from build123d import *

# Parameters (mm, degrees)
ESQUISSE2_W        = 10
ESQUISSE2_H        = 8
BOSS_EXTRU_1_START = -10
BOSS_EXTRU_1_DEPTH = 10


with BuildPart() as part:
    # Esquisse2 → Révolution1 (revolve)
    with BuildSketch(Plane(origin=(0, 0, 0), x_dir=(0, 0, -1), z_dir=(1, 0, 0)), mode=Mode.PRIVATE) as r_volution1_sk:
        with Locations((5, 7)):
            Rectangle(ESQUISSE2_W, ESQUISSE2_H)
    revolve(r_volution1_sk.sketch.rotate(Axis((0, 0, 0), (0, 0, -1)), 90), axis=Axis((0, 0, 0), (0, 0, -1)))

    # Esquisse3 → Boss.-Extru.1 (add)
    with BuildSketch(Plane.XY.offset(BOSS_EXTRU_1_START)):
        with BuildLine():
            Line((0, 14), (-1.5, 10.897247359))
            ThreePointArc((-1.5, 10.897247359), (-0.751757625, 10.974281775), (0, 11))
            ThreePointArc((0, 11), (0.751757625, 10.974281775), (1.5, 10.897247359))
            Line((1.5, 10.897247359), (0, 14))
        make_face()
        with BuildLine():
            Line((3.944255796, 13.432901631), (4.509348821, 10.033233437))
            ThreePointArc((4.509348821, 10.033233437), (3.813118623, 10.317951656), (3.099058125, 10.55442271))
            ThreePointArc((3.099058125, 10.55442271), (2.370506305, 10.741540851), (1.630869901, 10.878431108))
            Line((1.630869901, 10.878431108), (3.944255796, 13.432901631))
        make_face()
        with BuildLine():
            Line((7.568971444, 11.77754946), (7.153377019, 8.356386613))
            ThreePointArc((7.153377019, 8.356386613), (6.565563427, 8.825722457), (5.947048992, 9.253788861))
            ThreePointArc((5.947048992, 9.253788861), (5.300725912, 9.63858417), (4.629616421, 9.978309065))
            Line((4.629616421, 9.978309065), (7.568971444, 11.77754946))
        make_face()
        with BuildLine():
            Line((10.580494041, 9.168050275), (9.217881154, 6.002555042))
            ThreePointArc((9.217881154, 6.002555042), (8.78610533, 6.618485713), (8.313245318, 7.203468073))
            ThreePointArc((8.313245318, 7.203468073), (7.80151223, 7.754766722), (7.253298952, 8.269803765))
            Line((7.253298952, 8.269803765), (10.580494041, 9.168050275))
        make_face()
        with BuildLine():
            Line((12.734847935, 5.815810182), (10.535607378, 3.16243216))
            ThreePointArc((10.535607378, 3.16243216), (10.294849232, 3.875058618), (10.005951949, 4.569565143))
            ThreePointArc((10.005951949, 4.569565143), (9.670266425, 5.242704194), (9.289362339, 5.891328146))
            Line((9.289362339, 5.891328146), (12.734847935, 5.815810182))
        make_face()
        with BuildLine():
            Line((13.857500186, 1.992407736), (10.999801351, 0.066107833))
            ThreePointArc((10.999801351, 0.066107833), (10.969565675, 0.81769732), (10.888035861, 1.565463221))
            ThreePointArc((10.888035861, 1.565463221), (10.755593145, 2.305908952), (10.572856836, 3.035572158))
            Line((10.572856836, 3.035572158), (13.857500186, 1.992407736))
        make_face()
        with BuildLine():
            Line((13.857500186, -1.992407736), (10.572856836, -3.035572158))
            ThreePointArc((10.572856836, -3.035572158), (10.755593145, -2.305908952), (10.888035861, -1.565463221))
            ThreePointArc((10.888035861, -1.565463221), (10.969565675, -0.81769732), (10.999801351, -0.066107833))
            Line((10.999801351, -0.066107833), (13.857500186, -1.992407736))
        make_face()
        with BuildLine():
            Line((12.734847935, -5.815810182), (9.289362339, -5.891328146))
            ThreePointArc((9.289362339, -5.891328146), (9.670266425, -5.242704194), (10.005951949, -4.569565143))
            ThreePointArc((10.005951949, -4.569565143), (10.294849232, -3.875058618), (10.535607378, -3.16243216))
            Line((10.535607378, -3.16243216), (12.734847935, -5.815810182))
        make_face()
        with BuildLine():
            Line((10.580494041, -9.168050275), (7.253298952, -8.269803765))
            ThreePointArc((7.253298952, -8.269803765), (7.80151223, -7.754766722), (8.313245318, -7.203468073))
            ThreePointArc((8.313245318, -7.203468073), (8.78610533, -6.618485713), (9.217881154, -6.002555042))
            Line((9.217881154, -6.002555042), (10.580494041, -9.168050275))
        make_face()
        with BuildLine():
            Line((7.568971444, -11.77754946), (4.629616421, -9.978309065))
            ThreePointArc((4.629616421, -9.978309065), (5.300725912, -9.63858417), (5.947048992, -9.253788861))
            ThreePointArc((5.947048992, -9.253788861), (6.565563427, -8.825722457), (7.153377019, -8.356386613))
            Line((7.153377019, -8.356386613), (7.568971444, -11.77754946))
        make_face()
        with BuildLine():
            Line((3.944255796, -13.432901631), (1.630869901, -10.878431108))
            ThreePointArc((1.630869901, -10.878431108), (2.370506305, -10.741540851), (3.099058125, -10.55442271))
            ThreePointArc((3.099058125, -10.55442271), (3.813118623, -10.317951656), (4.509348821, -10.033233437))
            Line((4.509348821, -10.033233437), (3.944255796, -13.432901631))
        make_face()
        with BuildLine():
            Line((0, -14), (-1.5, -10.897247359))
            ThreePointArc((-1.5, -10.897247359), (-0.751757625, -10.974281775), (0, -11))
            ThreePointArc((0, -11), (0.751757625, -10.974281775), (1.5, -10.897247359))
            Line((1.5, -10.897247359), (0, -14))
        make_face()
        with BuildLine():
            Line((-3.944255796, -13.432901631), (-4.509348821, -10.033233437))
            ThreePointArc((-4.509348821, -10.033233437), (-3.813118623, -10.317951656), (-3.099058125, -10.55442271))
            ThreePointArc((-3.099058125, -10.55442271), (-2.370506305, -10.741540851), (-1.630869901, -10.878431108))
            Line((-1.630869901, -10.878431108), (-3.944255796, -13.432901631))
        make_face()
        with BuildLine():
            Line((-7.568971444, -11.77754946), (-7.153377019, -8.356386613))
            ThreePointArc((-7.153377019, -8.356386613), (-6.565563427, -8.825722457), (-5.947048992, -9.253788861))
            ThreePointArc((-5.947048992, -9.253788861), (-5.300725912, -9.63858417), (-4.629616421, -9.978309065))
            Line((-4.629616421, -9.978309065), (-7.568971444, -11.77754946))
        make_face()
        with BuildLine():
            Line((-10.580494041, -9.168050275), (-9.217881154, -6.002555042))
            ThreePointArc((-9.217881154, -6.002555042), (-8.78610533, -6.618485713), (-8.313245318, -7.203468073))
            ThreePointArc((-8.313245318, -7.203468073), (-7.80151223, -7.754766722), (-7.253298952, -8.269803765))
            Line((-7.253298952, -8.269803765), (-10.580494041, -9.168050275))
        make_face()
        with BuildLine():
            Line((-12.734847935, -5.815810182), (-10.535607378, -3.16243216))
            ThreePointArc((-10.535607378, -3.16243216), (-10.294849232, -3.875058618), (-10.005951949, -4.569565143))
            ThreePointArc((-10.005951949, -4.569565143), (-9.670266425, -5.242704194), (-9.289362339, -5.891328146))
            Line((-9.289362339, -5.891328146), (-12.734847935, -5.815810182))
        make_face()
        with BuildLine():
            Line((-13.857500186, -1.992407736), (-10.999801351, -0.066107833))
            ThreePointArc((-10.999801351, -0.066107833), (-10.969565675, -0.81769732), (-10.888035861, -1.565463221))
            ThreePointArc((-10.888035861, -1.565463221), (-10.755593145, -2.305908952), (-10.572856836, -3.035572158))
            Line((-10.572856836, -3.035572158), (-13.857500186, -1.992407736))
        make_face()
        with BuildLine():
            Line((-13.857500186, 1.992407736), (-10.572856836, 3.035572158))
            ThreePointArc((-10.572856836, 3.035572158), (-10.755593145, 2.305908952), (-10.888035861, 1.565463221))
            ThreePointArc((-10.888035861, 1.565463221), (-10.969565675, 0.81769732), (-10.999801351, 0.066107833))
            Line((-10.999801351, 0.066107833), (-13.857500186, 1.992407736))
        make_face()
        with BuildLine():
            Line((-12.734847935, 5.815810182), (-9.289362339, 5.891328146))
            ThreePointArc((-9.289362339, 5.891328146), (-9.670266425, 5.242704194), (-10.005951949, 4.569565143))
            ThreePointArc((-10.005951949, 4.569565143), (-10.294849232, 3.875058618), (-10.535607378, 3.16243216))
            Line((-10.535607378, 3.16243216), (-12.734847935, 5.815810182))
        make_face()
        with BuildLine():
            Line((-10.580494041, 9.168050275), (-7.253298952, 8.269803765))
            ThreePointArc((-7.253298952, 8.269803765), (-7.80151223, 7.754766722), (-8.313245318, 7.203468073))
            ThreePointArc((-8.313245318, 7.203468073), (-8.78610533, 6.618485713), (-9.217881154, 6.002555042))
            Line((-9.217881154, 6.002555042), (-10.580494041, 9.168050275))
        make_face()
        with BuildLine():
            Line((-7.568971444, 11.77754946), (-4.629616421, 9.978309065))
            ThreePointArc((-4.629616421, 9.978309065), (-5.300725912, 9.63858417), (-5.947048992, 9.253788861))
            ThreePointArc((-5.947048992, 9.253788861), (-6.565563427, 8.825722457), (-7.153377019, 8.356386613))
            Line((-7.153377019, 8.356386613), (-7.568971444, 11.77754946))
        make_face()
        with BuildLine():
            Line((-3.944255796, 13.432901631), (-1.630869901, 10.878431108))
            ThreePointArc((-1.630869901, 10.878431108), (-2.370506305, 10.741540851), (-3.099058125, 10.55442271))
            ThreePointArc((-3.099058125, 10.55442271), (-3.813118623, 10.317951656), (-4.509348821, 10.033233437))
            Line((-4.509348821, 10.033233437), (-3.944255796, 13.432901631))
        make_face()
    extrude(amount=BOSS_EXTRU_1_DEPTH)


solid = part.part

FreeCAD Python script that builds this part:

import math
import FreeCAD as App
import Part
import Sketcher
from FreeCAD import Vector
Q = App.Units.Quantity


def add_polygon(sketch, points):
    """Adds a closed chain of lines whose ends are joined by coincident constraints."""
    first, n = sketch.GeometryCount, len(points)
    for a, b in zip(points, points[1:] + points[:1]):
        sketch.addGeometry(Part.LineSegment(App.Vector(*a, 0), App.Vector(*b, 0)), False)
    for i in range(n):
        sketch.addConstraint(Sketcher.Constraint("Coincident", first + i, 2, first + (i + 1) % n, 1))

doc = App.newDocument("Part")
params = doc.addObject("Spreadsheet::Sheet", "Params")
for row, (alias, value) in enumerate([
    ("sketch1_width", "8 mm"),
    ("sketch1_height", "10 mm"),
    ("revolution_angle", "360 deg"),
    ("sketch2_radius", "11 mm"),
    ("pad1_length", "10 mm"),
], start=1):
    params.set(f"A{row}", alias)
    params.set(f"B{row}", "=" + value)
    params.setAlias(f"B{row}", alias)

body = doc.addObject("PartDesign::Body", "Body")

sketch1 = body.newObject("Sketcher::SketchObject", "Sketch")
sketch1.AttachmentSupport = (doc.getObject("YZ_Plane"), [""])
sketch1.MapMode = "FlatFace"
add_polygon(sketch1, [(11, 0), (3, 0), (3, -10), (11, -10)])
sketch1.addConstraint([
    Sketcher.Constraint("Horizontal", 0),
    Sketcher.Constraint("Vertical", 1),
    Sketcher.Constraint("Horizontal", 2),
    Sketcher.Constraint("Vertical", 3),
    Sketcher.Constraint("PointOnObject", 0, 2, -1),
    Sketcher.Constraint("DistanceX", 0, 2, 0, 1, Q("8 mm")),
    Sketcher.Constraint("DistanceY", 1, 2, 1, 1, Q("10 mm")),
    Sketcher.Constraint("DistanceX", -1, 1, 0, 2, Q("3 mm")),
])
sketch1.setExpression("Constraints[9]", "Params.sketch1_width")
sketch1.setExpression("Constraints[10]", "Params.sketch1_height")
revolution = body.newObject("PartDesign::Revolution", "Revolution")
revolution.Profile = sketch1
revolution.ReferenceAxis = (sketch1, ["V_Axis"])
revolution.setExpression("Angle", "Params.revolution_angle")

sketch2 = body.newObject("Sketcher::SketchObject", "Sketch001")
sketch2.AttachmentSupport = (doc.getObject("XY_Plane"), [""])
sketch2.MapMode = "FlatFace"
sketch2.AttachmentOffset = App.Placement(Vector(0, 0, -10), App.Rotation())
sketch2.addGeometry([
    Part.LineSegment(Vector(0, 14, 0), Vector(-1.5, 10.9, 0)),
    Part.ArcOfCircle(Part.Circle(Vector(0, 0, 0), Vector(0, 0, 1), 11), math.radians(90), math.radians(97.84)),
    Part.ArcOfCircle(Part.Circle(Vector(0, 0, 0), Vector(0, 0, 1), 11), math.radians(82.16), math.radians(90)),
    Part.LineSegment(Vector(1.5, 10.9, 0), Vector(0, 14, 0)),
    Part.LineSegment(Vector(4.5, 10, 0), Vector(3.9, 13.4, 0)),
    Part.LineSegment(Vector(3.9, 13.4, 0), Vector(1.6, 10.9, 0)),
    Part.ArcOfCircle(Part.Circle(Vector(0, 0, 0), Vector(0, 0, 1), 11), math.radians(73.64), math.radians(81.47)),
    Part.ArcOfCircle(Part.Circle(Vector(0, 0, 0), Vector(0, 0, 1), 11), math.radians(65.8), math.radians(73.64)),
    Part.LineSegment(Vector(7.2, 8.4, 0), Vector(7.6, 11.8, 0)),
    Part.LineSegment(Vector(7.6, 11.8, 0), Vector(4.6, 10, 0)),
    Part.ArcOfCircle(Part.Circle(Vector(0, 0, 0), Vector(0, 0, 1), 11), math.radians(57.27), math.radians(65.11)),
    Part.ArcOfCircle(Part.Circle(Vector(0, 0, 0), Vector(0, 0, 1), 11), math.radians(49.44), math.radians(57.27)),
    Part.LineSegment(Vector(9.2, 6, 0), Vector(10.6, 9.2, 0)),
    Part.LineSegment(Vector(10.6, 9.2, 0), Vector(7.3, 8.3, 0)),
    Part.ArcOfCircle(Part.Circle(Vector(0, 0, 0), Vector(0, 0, 1), 11), math.radians(40.91), math.radians(48.75)),
    Part.ArcOfCircle(Part.Circle(Vector(0, 0, 0), Vector(0, 0, 1), 11), math.radians(33.07), math.radians(40.91)),
    Part.LineSegment(Vector(10.5, 3.2, 0), Vector(12.7, 5.8, 0)),
    Part.LineSegment(Vector(12.7, 5.8, 0), Vector(9.3, 5.9, 0)),
    Part.ArcOfCircle(Part.Circle(Vector(0, 0, 0), Vector(0, 0, 1), 11), math.radians(24.55), math.radians(32.38)),
    Part.ArcOfCircle(Part.Circle(Vector(0, 0, 0), Vector(0, 0, 1), 11), math.radians(16.71), math.radians(24.55)),
    Part.LineSegment(Vector(11, 0.1, 0), Vector(13.9, 2, 0)),
    Part.LineSegment(Vector(13.9, 2, 0), Vector(10.6, 3, 0)),
    Part.ArcOfCircle(Part.Circle(Vector(0, 0, 0), Vector(0, 0, 1), 11), math.radians(8.18), math.radians(16.02)),
    Part.ArcOfCircle(Part.Circle(Vector(0, 0, 0), Vector(0, 0, 1), 11), math.radians(0.34), math.radians(8.18)),
    Part.LineSegment(Vector(10.6, -3, 0), Vector(13.9, -2, 0)),
    Part.LineSegment(Vector(13.9, -2, 0), Vector(11, -0.1, 0)),
    Part.ArcOfCircle(Part.Circle(Vector(0, 0, 0), Vector(0, 0, 1), 11), math.radians(-8.18), math.radians(-0.34)),
    Part.ArcOfCircle(Part.Circle(Vector(0, 0, 0), Vector(0, 0, 1), 11), math.radians(-16.02), math.radians(-8.18)),
    Part.LineSegment(Vector(9.3, -5.9, 0), Vector(12.7, -5.8, 0)),
    Part.LineSegment(Vector(12.7, -5.8, 0), Vector(10.5, -3.2, 0)),
    Part.ArcOfCircle(Part.Circle(Vector(0, 0, 0), Vector(0, 0, 1), 11), math.radians(-24.55), math.radians(-16.71)),
    Part.ArcOfCircle(Part.Circle(Vector(0, 0, 0), Vector(0, 0, 1), 11), math.radians(-32.38), math.radians(-24.55)),
    Part.LineSegment(Vector(7.3, -8.3, 0), Vector(10.6, -9.2, 0)),
    Part.LineSegment(Vector(10.6, -9.2, 0), Vector(9.2, -6, 0)),
    Part.ArcOfCircle(Part.Circle(Vector(0, 0, 0), Vector(0, 0, 1), 11), math.radians(-40.91), math.radians(-33.07)),
    Part.ArcOfCircle(Part.Circle(Vector(0, 0, 0), Vector(0, 0, 1), 11), math.radians(-48.75), math.radians(-40.91)),
    Part.LineSegment(Vector(4.6, -10, 0), Vector(7.6, -11.8, 0)),
    Part.LineSegment(Vector(7.6, -11.8, 0), Vector(7.2, -8.4, 0)),
    Part.ArcOfCircle(Part.Circle(Vector(0, 0, 0), Vector(0, 0, 1), 11), math.radians(-57.27), math.radians(-49.44)),
    Part.ArcOfCircle(Part.Circle(Vector(0, 0, 0), Vector(0, 0, 1), 11), math.radians(-65.11), math.radians(-57.27)),
    Part.LineSegment(Vector(1.6, -10.9, 0), Vector(3.9, -13.4, 0)),
    Part.LineSegment(Vector(3.9, -13.4, 0), Vector(4.5, -10, 0)),
    Part.ArcOfCircle(Part.Circle(Vector(0, 0, 0), Vector(0, 0, 1), 11), math.radians(-73.64), math.radians(-65.8)),
    Part.ArcOfCircle(Part.Circle(Vector(0, 0, 0), Vector(0, 0, 1), 11), math.radians(-81.47), math.radians(-73.64)),
    Part.LineSegment(Vector(-1.5, -10.9, 0), Vector(0, -14, 0)),
    Part.LineSegment(Vector(0, -14, 0), Vector(1.5, -10.9, 0)),
    Part.ArcOfCircle(Part.Circle(Vector(0, 0, 0), Vector(0, 0, 1), 11), math.radians(-90), math.radians(-82.16)),
    Part.ArcOfCircle(Part.Circle(Vector(0, 0, 0), Vector(0, 0, 1), 11), math.radians(-97.84), math.radians(-90)),
    Part.LineSegment(Vector(-4.5, -10, 0), Vector(-3.9, -13.4, 0)),
    Part.LineSegment(Vector(-3.9, -13.4, 0), Vector(-1.6, -10.9, 0)),
    Part.ArcOfCircle(Part.Circle(Vector(0, 0, 0), Vector(0, 0, 1), 11), math.radians(-106.36), math.radians(-98.53)),
    Part.ArcOfCircle(Part.Circle(Vector(0, 0, 0), Vector(0, 0, 1), 11), math.radians(-114.2), math.radians(-106.36)),
    Part.LineSegment(Vector(-7.2, -8.4, 0), Vector(-7.6, -11.8, 0)),
    Part.LineSegment(Vector(-7.6, -11.8, 0), Vector(-4.6, -10, 0)),
    Part.ArcOfCircle(Part.Circle(Vector(0, 0, 0), Vector(0, 0, 1), 11), math.radians(-122.73), math.radians(-114.89)),
    Part.ArcOfCircle(Part.Circle(Vector(0, 0, 0), Vector(0, 0, 1), 11), math.radians(-130.56), math.radians(-122.73)),
    Part.LineSegment(Vector(-9.2, -6, 0), Vector(-10.6, -9.2, 0)),
    Part.LineSegment(Vector(-10.6, -9.2, 0), Vector(-7.3, -8.3, 0)),
    Part.ArcOfCircle(Part.Circle(Vector(0, 0, 0), Vector(0, 0, 1), 11), math.radians(-139.09), math.radians(-131.25)),
    Part.ArcOfCircle(Part.Circle(Vector(0, 0, 0), Vector(0, 0, 1), 11), math.radians(-146.93), math.radians(-139.09)),
    Part.LineSegment(Vector(-10.5, -3.2, 0), Vector(-12.7, -5.8, 0)),
    Part.LineSegment(Vector(-12.7, -5.8, 0), Vector(-9.3, -5.9, 0)),
    Part.ArcOfCircle(Part.Circle(Vector(0, 0, 0), Vector(0, 0, 1), 11), math.radians(-155.45), math.radians(-147.62)),
    Part.ArcOfCircle(Part.Circle(Vector(0, 0, 0), Vector(0, 0, 1), 11), math.radians(-163.29), math.radians(-155.45)),
    Part.LineSegment(Vector(-11, -0.1, 0), Vector(-13.9, -2, 0)),
    Part.LineSegment(Vector(-13.9, -2, 0), Vector(-10.6, -3, 0)),
    Part.ArcOfCircle(Part.Circle(Vector(0, 0, 0), Vector(0, 0, 1), 11), math.radians(-171.82), math.radians(-163.98)),
    Part.ArcOfCircle(Part.Circle(Vector(0, 0, 0), Vector(0, 0, 1), 11), math.radians(-179.66), math.radians(-171.82)),
    Part.LineSegment(Vector(-10.6, 3, 0), Vector(-13.9, 2, 0)),
    Part.LineSegment(Vector(-13.9, 2, 0), Vector(-11, 0.1, 0)),
    Part.ArcOfCircle(Part.Circle(Vector(0, 0, 0), Vector(0, 0, 1), 11), math.radians(171.82), math.radians(179.66)),
    Part.ArcOfCircle(Part.Circle(Vector(0, 0, 0), Vector(0, 0, 1), 11), math.radians(163.98), math.radians(171.82)),
    Part.LineSegment(Vector(-9.3, 5.9, 0), Vector(-12.7, 5.8, 0)),
    Part.LineSegment(Vector(-12.7, 5.8, 0), Vector(-10.5, 3.2, 0)),
    Part.ArcOfCircle(Part.Circle(Vector(0, 0, 0), Vector(0, 0, 1), 11), math.radians(155.45), math.radians(163.29)),
    Part.ArcOfCircle(Part.Circle(Vector(0, 0, 0), Vector(0, 0, 1), 11), math.radians(147.62), math.radians(155.45)),
    Part.LineSegment(Vector(-7.3, 8.3, 0), Vector(-10.6, 9.2, 0)),
    Part.LineSegment(Vector(-10.6, 9.2, 0), Vector(-9.2, 6, 0)),
    Part.ArcOfCircle(Part.Circle(Vector(0, 0, 0), Vector(0, 0, 1), 11), math.radians(139.09), math.radians(146.93)),
    Part.ArcOfCircle(Part.Circle(Vector(0, 0, 0), Vector(0, 0, 1), 11), math.radians(131.25), math.radians(139.09)),
    Part.LineSegment(Vector(-4.6, 10, 0), Vector(-7.6, 11.8, 0)),
    Part.LineSegment(Vector(-7.6, 11.8, 0), Vector(-7.2, 8.4, 0)),
    Part.ArcOfCircle(Part.Circle(Vector(0, 0, 0), Vector(0, 0, 1), 11), math.radians(122.73), math.radians(130.56)),
    Part.ArcOfCircle(Part.Circle(Vector(0, 0, 0), Vector(0, 0, 1), 11), math.radians(114.89), math.radians(122.73)),
    Part.LineSegment(Vector(-1.6, 10.9, 0), Vector(-3.9, 13.4, 0)),
    Part.LineSegment(Vector(-3.9, 13.4, 0), Vector(-4.5, 10, 0)),
    Part.ArcOfCircle(Part.Circle(Vector(0, 0, 0), Vector(0, 0, 1), 11), math.radians(106.36), math.radians(114.2)),
    Part.ArcOfCircle(Part.Circle(Vector(0, 0, 0), Vector(0, 0, 1), 11), math.radians(98.53), math.radians(106.36)),
], False)
sketch2.addConstraint([
    Sketcher.Constraint("Coincident", 0, 2, 1, 2),
    Sketcher.Constraint("Tangent", 1, 1, 2, 2),
    Sketcher.Constraint("Coincident", 2, 1, 3, 1),
    Sketcher.Constraint("Coincident", 3, 2, 0, 1),
    Sketcher.Constraint("Coincident", 4, 2, 5, 1),
    Sketcher.Constraint("Coincident", 5, 2, 6, 2),
    Sketcher.Constraint("Tangent", 6, 1, 7, 2),
    Sketcher.Constraint("Coincident", 7, 1, 4, 1),
    Sketcher.Constraint("Coincident", 8, 2, 9, 1),
    Sketcher.Constraint("Coincident", 9, 2, 10, 2),
    Sketcher.Constraint("Tangent", 10, 1, 11, 2),
    Sketcher.Constraint("Coincident", 11, 1, 8, 1),
    Sketcher.Constraint("Coincident", 12, 2, 13, 1),
    Sketcher.Constraint("Coincident", 13, 2, 14, 2),
    Sketcher.Constraint("Tangent", 14, 1, 15, 2),
    Sketcher.Constraint("Coincident", 15, 1, 12, 1),
    Sketcher.Constraint("Coincident", 16, 2, 17, 1),
    Sketcher.Constraint("Coincident", 17, 2, 18, 2),
    Sketcher.Constraint("Tangent", 18, 1, 19, 2),
    Sketcher.Constraint("Coincident", 19, 1, 16, 1),
    Sketcher.Constraint("Coincident", 20, 2, 21, 1),
    Sketcher.Constraint("Coincident", 21, 2, 22, 2),
    Sketcher.Constraint("Tangent", 22, 1, 23, 2),
    Sketcher.Constraint("Coincident", 23, 1, 20, 1),
    Sketcher.Constraint("Coincident", 24, 2, 25, 1),
    Sketcher.Constraint("Coincident", 25, 2, 26, 2),
    Sketcher.Constraint("Tangent", 26, 1, 27, 2),
    Sketcher.Constraint("Coincident", 27, 1, 24, 1),
    Sketcher.Constraint("Coincident", 28, 2, 29, 1),
    Sketcher.Constraint("Coincident", 29, 2, 30, 2),
    Sketcher.Constraint("Tangent", 30, 1, 31, 2),
    Sketcher.Constraint("Coincident", 31, 1, 28, 1),
    Sketcher.Constraint("Coincident", 32, 2, 33, 1),
    Sketcher.Constraint("Coincident", 33, 2, 34, 2),
    Sketcher.Constraint("Tangent", 34, 1, 35, 2),
    Sketcher.Constraint("Coincident", 35, 1, 32, 1),
    Sketcher.Constraint("Coincident", 36, 2, 37, 1),
    Sketcher.Constraint("Coincident", 37, 2, 38, 2),
    Sketcher.Constraint("Tangent", 38, 1, 39, 2),
    Sketcher.Constraint("Coincident", 39, 1, 36, 1),
    Sketcher.Constraint("Coincident", 40, 2, 41, 1),
    Sketcher.Constraint("Coincident", 41, 2, 42, 2),
    Sketcher.Constraint("Tangent", 42, 1, 43, 2),
    Sketcher.Constraint("Coincident", 43, 1, 40, 1),
    Sketcher.Constraint("Coincident", 44, 2, 45, 1),
    Sketcher.Constraint("Coincident", 45, 2, 46, 2),
    Sketcher.Constraint("Tangent", 46, 1, 47, 2),
    Sketcher.Constraint("Coincident", 47, 1, 44, 1),
    Sketcher.Constraint("Coincident", 48, 2, 49, 1),
    Sketcher.Constraint("Coincident", 49, 2, 50, 2),
    Sketcher.Constraint("Tangent", 50, 1, 51, 2),
    Sketcher.Constraint("Coincident", 51, 1, 48, 1),
    Sketcher.Constraint("Coincident", 52, 2, 53, 1),
    Sketcher.Constraint("Coincident", 53, 2, 54, 2),
    Sketcher.Constraint("Tangent", 54, 1, 55, 2),
    Sketcher.Constraint("Coincident", 55, 1, 52, 1),
    Sketcher.Constraint("Coincident", 56, 2, 57, 1),
    Sketcher.Constraint("Coincident", 57, 2, 58, 2),
    Sketcher.Constraint("Tangent", 58, 1, 59, 2),
    Sketcher.Constraint("Coincident", 59, 1, 56, 1),
    Sketcher.Constraint("Coincident", 60, 2, 61, 1),
    Sketcher.Constraint("Coincident", 61, 2, 62, 2),
    Sketcher.Constraint("Tangent", 62, 1, 63, 2),
    Sketcher.Constraint("Coincident", 63, 1, 60, 1),
    Sketcher.Constraint("Coincident", 64, 2, 65, 1),
    Sketcher.Constraint("Coincident", 65, 2, 66, 2),
    Sketcher.Constraint("Tangent", 66, 1, 67, 2),
    Sketcher.Constraint("Coincident", 67, 1, 64, 1),
    Sketcher.Constraint("Coincident", 68, 2, 69, 1),
    Sketcher.Constraint("Coincident", 69, 2, 70, 2),
    Sketcher.Constraint("Tangent", 70, 1, 71, 2),
    Sketcher.Constraint("Coincident", 71, 1, 68, 1),
    Sketcher.Constraint("Coincident", 72, 2, 73, 1),
    Sketcher.Constraint("Coincident", 73, 2, 74, 2),
    Sketcher.Constraint("Tangent", 74, 1, 75, 2),
    Sketcher.Constraint("Coincident", 75, 1, 72, 1),
    Sketcher.Constraint("Coincident", 76, 2, 77, 1),
    Sketcher.Constraint("Coincident", 77, 2, 78, 2),
    Sketcher.Constraint("Tangent", 78, 1, 79, 2),
    Sketcher.Constraint("Coincident", 79, 1, 76, 1),
    Sketcher.Constraint("Coincident", 80, 2, 81, 1),
    Sketcher.Constraint("Coincident", 81, 2, 82, 2),
    Sketcher.Constraint("Tangent", 82, 1, 83, 2),
    Sketcher.Constraint("Coincident", 83, 1, 80, 1),
    Sketcher.Constraint("Coincident", 84, 2, 85, 1),
    Sketcher.Constraint("Coincident", 85, 2, 86, 2),
    Sketcher.Constraint("Tangent", 86, 1, 87, 2),
    Sketcher.Constraint("Coincident", 87, 1, 84, 1),
    Sketcher.Constraint("Coincident", 1, 3, -1, 1),
    Sketcher.Constraint("Coincident", 6, 3, -1, 1),
    Sketcher.Constraint("Coincident", 10, 3, -1, 1),
    Sketcher.Constraint("Coincident", 14, 3, -1, 1),
    Sketcher.Constraint("Coincident", 18, 3, -1, 1),
    Sketcher.Constraint("Coincident", 22, 3, -1, 1),
    Sketcher.Constraint("Coincident", 26, 3, -1, 1),
    Sketcher.Constraint("Coincident", 30, 3, -1, 1),
    Sketcher.Constraint("Coincident", 34, 3, -1, 1),
    Sketcher.Constraint("Coincident", 38, 3, -1, 1),
    Sketcher.Constraint("Coincident", 42, 3, -1, 1),
    Sketcher.Constraint("Coincident", 46, 3, -1, 1),
    Sketcher.Constraint("Coincident", 50, 3, -1, 1),
    Sketcher.Constraint("Coincident", 54, 3, -1, 1),
    Sketcher.Constraint("Coincident", 58, 3, -1, 1),
    Sketcher.Constraint("Coincident", 62, 3, -1, 1),
    Sketcher.Constraint("Coincident", 66, 3, -1, 1),
    Sketcher.Constraint("Coincident", 70, 3, -1, 1),
    Sketcher.Constraint("Coincident", 74, 3, -1, 1),
    Sketcher.Constraint("Coincident", 78, 3, -1, 1),
    Sketcher.Constraint("Coincident", 82, 3, -1, 1),
    Sketcher.Constraint("Coincident", 86, 3, -1, 1),
    Sketcher.Constraint("Equal", 1, 2),
    Sketcher.Constraint("Equal", 2, 6),
    Sketcher.Constraint("Equal", 6, 7),
    Sketcher.Constraint("Equal", 7, 10),
    Sketcher.Constraint("Equal", 10, 11),
    Sketcher.Constraint("Equal", 11, 14),
    Sketcher.Constraint("Equal", 14, 15),
    Sketcher.Constraint("Equal", 15, 18),
    Sketcher.Constraint("Equal", 18, 19),
    Sketcher.Constraint("Equal", 19, 22),
    Sketcher.Constraint("Equal", 22, 23),
    Sketcher.Constraint("Equal", 23, 26),
    Sketcher.Constraint("Equal", 26, 27),
    Sketcher.Constraint("Equal", 27, 30),
    Sketcher.Constraint("Equal", 30, 31),
    Sketcher.Constraint("Equal", 31, 34),
    Sketcher.Constraint("Equal", 34, 35),
    Sketcher.Constraint("Equal", 35, 38),
    Sketcher.Constraint("Equal", 38, 39),
    Sketcher.Constraint("Equal", 39, 42),
    Sketcher.Constraint("Equal", 42, 43),
    Sketcher.Constraint("Equal", 43, 46),
    Sketcher.Constraint("Equal", 46, 47),
    Sketcher.Constraint("Equal", 47, 50),
    Sketcher.Constraint("Equal", 50, 51),
    Sketcher.Constraint("Equal", 51, 54),
    Sketcher.Constraint("Equal", 54, 55),
    Sketcher.Constraint("Equal", 55, 58),
    Sketcher.Constraint("Equal", 58, 59),
    Sketcher.Constraint("Equal", 59, 62),
    Sketcher.Constraint("Equal", 62, 63),
    Sketcher.Constraint("Equal", 63, 66),
    Sketcher.Constraint("Equal", 66, 67),
    Sketcher.Constraint("Equal", 67, 70),
    Sketcher.Constraint("Equal", 70, 71),
    Sketcher.Constraint("Equal", 71, 74),
    Sketcher.Constraint("Equal", 74, 75),
    Sketcher.Constraint("Equal", 75, 78),
    Sketcher.Constraint("Equal", 78, 79),
    Sketcher.Constraint("Equal", 79, 82),
    Sketcher.Constraint("Equal", 82, 83),
    Sketcher.Constraint("Equal", 83, 86),
    Sketcher.Constraint("Equal", 86, 87),
    Sketcher.Constraint("Symmetric", 3, 2, 44, 2, -1, 1),
    Sketcher.Constraint("Symmetric", 4, 2, 48, 2, -1, 1),
    Sketcher.Constraint("Symmetric", 8, 2, 52, 2, -1, 1),
    Sketcher.Constraint("Symmetric", 12, 2, 56, 2, -1, 1),
    Sketcher.Constraint("Symmetric", 16, 2, 60, 2, -1, 1),
    Sketcher.Constraint("Symmetric", 20, 2, 64, 2, -1, 1),
    Sketcher.Constraint("Symmetric", 24, 2, 68, 2, -1, 1),
    Sketcher.Constraint("Symmetric", 28, 2, 72, 2, -1, 1),
    Sketcher.Constraint("Symmetric", 32, 2, 76, 2, -1, 1),
    Sketcher.Constraint("Symmetric", 36, 2, 80, 2, -1, 1),
    Sketcher.Constraint("Symmetric", 40, 2, 84, 2, -1, 1),
    Sketcher.Constraint("Symmetric", 40, 2, 48, 2, -2),
    Sketcher.Constraint("Symmetric", 36, 2, 52, 2, -2),
    Sketcher.Constraint("Symmetric", 32, 2, 56, 2, -2),
    Sketcher.Constraint("Symmetric", 28, 2, 60, 2, -2),
    Sketcher.Constraint("Symmetric", 24, 2, 64, 2, -2),
    Sketcher.Constraint("PointOnObject", 1, 1, -2),
    Sketcher.Constraint("PointOnObject", 3, 2, -2),
    Sketcher.Constraint("PointOnObject", 46, 1, -2),
    Sketcher.Constraint("Parallel", 3, 44),
    Sketcher.Constraint("Parallel", 0, 45),
    Sketcher.Constraint("Parallel", 4, 48),
    Sketcher.Constraint("Parallel", 5, 49),
    Sketcher.Constraint("Parallel", 8, 52),
    Sketcher.Constraint("Parallel", 9, 53),
    Sketcher.Constraint("Parallel", 12, 56),
    Sketcher.Constraint("Parallel", 13, 57),
    Sketcher.Constraint("Parallel", 16, 60),
    Sketcher.Constraint("Parallel", 17, 61),
    Sketcher.Constraint("Parallel", 20, 64),
    Sketcher.Constraint("Parallel", 21, 65),
    Sketcher.Constraint("Parallel", 24, 68),
    Sketcher.Constraint("Parallel", 25, 69),
    Sketcher.Constraint("Parallel", 28, 72),
    Sketcher.Constraint("Parallel", 29, 73),
    Sketcher.Constraint("Parallel", 32, 76),
    Sketcher.Constraint("Parallel", 33, 77),
    Sketcher.Constraint("Parallel", 36, 80),
    Sketcher.Constraint("Parallel", 37, 81),
    Sketcher.Constraint("Parallel", 40, 84),
    Sketcher.Constraint("Parallel", 41, 85),
    Sketcher.Constraint("Horizontal", 0, 2, 2, 1),
    Sketcher.Constraint("Horizontal", 43, 1, 49, 2),
    Sketcher.Constraint("Horizontal", 42, 1, 50, 1),
    Sketcher.Constraint("Horizontal", 41, 2, 51, 1),
    Sketcher.Constraint("Horizontal", 39, 1, 53, 2),
    Sketcher.Constraint("Horizontal", 38, 1, 54, 1),
    Sketcher.Constraint("Horizontal", 37, 2, 55, 1),
    Sketcher.Constraint("Horizontal", 35, 1, 57, 2),
    Sketcher.Constraint("Horizontal", 34, 1, 58, 1),
    Sketcher.Constraint("Horizontal", 33, 2, 59, 1),
    Sketcher.Constraint("Horizontal", 31, 1, 61, 2),
    Sketcher.Constraint("Horizontal", 30, 1, 62, 1),
    Sketcher.Constraint("Horizontal", 29, 2, 63, 1),
    Sketcher.Constraint("Horizontal", 27, 1, 65, 2),
    Sketcher.Constraint("Horizontal", 26, 1, 66, 1),
    Sketcher.Constraint("Horizontal", 25, 2, 67, 1),
    Sketcher.Constraint("Horizontal", 22, 1, 70, 1),
    Sketcher.Constraint("Horizontal", 18, 1, 74, 1),
    Sketcher.Constraint("Horizontal", 14, 1, 78, 1),
    Sketcher.Constraint("Horizontal", 10, 1, 82, 1),
    Sketcher.Constraint("Horizontal", 6, 1, 86, 1),
    Sketcher.Constraint("Vertical", 22, 1, 26, 1),
    Sketcher.Constraint("Vertical", 18, 1, 30, 1),
    Sketcher.Constraint("Vertical", 14, 1, 34, 1),
    Sketcher.Constraint("Vertical", 10, 1, 38, 1),
    Sketcher.Constraint("Vertical", 6, 1, 42, 1),
    Sketcher.Constraint("Equal", 3, 4),
    Sketcher.Constraint("Equal", 4, 5),
    Sketcher.Constraint("Equal", 5, 8),
    Sketcher.Constraint("Equal", 8, 9),
    Sketcher.Constraint("Equal", 9, 12),
    Sketcher.Constraint("Equal", 12, 13),
    Sketcher.Constraint("Equal", 13, 16),
    Sketcher.Constraint("Equal", 16, 17),
    Sketcher.Constraint("Equal", 17, 20),
    Sketcher.Constraint("Equal", 20, 21),
    Sketcher.Constraint("Radius", 1, Q("11 mm")),
    Sketcher.Constraint("DistanceY", -1, 1, 3, 2, Q("14 mm")),
    Sketcher.Constraint("DistanceX", 0, 2, -1, 1, Q("1.5 mm")),
    Sketcher.Constraint("DistanceY", -1, 1, 4, 2, Q("13.432902 mm")),
    Sketcher.Constraint("DistanceX", -1, 1, 13, 2, Q("7.253299 mm")),
    Sketcher.Constraint("DistanceX", -1, 1, 20, 2, Q("13.8575 mm")),
    Sketcher.Constraint("DistanceX", -1, 1, 5, 2, Q("1.63087 mm")),
    Sketcher.Constraint("DistanceX", -1, 1, 6, 1, Q("3.099058 mm")),
    Sketcher.Constraint("DistanceX", -1, 1, 8, 2, Q("7.568971 mm")),
    Sketcher.Constraint("DistanceY", -1, 1, 8, 2, Q("11.777549 mm")),
    Sketcher.Constraint("DistanceX", -1, 1, 10, 1, Q("5.947049 mm")),
    Sketcher.Constraint("DistanceY", -1, 1, 12, 2, Q("9.16805 mm")),
    Sketcher.Constraint("DistanceY", -1, 1, 14, 1, Q("7.203468 mm")),
    Sketcher.Constraint("DistanceY", -1, 1, 16, 2, Q("5.81581 mm")),
    Sketcher.Constraint("DistanceY", -1, 1, 17, 2, Q("5.891328 mm")),
    Sketcher.Constraint("DistanceX", -1, 1, 18, 1, Q("10.005952 mm")),
    Sketcher.Constraint("DistanceY", -1, 1, 20, 2, Q("1.992408 mm")),
    Sketcher.Constraint("DistanceX", -1, 1, 22, 1, Q("10.888036 mm")),
])
sketch2.setExpression("Constraints[230]", "Params.sketch2_radius")
pad1 = body.newObject("PartDesign::Pad", "Pad")
pad1.Profile = sketch2
pad1.setExpression("Length", "Params.pad1_length")

doc.recompute()
